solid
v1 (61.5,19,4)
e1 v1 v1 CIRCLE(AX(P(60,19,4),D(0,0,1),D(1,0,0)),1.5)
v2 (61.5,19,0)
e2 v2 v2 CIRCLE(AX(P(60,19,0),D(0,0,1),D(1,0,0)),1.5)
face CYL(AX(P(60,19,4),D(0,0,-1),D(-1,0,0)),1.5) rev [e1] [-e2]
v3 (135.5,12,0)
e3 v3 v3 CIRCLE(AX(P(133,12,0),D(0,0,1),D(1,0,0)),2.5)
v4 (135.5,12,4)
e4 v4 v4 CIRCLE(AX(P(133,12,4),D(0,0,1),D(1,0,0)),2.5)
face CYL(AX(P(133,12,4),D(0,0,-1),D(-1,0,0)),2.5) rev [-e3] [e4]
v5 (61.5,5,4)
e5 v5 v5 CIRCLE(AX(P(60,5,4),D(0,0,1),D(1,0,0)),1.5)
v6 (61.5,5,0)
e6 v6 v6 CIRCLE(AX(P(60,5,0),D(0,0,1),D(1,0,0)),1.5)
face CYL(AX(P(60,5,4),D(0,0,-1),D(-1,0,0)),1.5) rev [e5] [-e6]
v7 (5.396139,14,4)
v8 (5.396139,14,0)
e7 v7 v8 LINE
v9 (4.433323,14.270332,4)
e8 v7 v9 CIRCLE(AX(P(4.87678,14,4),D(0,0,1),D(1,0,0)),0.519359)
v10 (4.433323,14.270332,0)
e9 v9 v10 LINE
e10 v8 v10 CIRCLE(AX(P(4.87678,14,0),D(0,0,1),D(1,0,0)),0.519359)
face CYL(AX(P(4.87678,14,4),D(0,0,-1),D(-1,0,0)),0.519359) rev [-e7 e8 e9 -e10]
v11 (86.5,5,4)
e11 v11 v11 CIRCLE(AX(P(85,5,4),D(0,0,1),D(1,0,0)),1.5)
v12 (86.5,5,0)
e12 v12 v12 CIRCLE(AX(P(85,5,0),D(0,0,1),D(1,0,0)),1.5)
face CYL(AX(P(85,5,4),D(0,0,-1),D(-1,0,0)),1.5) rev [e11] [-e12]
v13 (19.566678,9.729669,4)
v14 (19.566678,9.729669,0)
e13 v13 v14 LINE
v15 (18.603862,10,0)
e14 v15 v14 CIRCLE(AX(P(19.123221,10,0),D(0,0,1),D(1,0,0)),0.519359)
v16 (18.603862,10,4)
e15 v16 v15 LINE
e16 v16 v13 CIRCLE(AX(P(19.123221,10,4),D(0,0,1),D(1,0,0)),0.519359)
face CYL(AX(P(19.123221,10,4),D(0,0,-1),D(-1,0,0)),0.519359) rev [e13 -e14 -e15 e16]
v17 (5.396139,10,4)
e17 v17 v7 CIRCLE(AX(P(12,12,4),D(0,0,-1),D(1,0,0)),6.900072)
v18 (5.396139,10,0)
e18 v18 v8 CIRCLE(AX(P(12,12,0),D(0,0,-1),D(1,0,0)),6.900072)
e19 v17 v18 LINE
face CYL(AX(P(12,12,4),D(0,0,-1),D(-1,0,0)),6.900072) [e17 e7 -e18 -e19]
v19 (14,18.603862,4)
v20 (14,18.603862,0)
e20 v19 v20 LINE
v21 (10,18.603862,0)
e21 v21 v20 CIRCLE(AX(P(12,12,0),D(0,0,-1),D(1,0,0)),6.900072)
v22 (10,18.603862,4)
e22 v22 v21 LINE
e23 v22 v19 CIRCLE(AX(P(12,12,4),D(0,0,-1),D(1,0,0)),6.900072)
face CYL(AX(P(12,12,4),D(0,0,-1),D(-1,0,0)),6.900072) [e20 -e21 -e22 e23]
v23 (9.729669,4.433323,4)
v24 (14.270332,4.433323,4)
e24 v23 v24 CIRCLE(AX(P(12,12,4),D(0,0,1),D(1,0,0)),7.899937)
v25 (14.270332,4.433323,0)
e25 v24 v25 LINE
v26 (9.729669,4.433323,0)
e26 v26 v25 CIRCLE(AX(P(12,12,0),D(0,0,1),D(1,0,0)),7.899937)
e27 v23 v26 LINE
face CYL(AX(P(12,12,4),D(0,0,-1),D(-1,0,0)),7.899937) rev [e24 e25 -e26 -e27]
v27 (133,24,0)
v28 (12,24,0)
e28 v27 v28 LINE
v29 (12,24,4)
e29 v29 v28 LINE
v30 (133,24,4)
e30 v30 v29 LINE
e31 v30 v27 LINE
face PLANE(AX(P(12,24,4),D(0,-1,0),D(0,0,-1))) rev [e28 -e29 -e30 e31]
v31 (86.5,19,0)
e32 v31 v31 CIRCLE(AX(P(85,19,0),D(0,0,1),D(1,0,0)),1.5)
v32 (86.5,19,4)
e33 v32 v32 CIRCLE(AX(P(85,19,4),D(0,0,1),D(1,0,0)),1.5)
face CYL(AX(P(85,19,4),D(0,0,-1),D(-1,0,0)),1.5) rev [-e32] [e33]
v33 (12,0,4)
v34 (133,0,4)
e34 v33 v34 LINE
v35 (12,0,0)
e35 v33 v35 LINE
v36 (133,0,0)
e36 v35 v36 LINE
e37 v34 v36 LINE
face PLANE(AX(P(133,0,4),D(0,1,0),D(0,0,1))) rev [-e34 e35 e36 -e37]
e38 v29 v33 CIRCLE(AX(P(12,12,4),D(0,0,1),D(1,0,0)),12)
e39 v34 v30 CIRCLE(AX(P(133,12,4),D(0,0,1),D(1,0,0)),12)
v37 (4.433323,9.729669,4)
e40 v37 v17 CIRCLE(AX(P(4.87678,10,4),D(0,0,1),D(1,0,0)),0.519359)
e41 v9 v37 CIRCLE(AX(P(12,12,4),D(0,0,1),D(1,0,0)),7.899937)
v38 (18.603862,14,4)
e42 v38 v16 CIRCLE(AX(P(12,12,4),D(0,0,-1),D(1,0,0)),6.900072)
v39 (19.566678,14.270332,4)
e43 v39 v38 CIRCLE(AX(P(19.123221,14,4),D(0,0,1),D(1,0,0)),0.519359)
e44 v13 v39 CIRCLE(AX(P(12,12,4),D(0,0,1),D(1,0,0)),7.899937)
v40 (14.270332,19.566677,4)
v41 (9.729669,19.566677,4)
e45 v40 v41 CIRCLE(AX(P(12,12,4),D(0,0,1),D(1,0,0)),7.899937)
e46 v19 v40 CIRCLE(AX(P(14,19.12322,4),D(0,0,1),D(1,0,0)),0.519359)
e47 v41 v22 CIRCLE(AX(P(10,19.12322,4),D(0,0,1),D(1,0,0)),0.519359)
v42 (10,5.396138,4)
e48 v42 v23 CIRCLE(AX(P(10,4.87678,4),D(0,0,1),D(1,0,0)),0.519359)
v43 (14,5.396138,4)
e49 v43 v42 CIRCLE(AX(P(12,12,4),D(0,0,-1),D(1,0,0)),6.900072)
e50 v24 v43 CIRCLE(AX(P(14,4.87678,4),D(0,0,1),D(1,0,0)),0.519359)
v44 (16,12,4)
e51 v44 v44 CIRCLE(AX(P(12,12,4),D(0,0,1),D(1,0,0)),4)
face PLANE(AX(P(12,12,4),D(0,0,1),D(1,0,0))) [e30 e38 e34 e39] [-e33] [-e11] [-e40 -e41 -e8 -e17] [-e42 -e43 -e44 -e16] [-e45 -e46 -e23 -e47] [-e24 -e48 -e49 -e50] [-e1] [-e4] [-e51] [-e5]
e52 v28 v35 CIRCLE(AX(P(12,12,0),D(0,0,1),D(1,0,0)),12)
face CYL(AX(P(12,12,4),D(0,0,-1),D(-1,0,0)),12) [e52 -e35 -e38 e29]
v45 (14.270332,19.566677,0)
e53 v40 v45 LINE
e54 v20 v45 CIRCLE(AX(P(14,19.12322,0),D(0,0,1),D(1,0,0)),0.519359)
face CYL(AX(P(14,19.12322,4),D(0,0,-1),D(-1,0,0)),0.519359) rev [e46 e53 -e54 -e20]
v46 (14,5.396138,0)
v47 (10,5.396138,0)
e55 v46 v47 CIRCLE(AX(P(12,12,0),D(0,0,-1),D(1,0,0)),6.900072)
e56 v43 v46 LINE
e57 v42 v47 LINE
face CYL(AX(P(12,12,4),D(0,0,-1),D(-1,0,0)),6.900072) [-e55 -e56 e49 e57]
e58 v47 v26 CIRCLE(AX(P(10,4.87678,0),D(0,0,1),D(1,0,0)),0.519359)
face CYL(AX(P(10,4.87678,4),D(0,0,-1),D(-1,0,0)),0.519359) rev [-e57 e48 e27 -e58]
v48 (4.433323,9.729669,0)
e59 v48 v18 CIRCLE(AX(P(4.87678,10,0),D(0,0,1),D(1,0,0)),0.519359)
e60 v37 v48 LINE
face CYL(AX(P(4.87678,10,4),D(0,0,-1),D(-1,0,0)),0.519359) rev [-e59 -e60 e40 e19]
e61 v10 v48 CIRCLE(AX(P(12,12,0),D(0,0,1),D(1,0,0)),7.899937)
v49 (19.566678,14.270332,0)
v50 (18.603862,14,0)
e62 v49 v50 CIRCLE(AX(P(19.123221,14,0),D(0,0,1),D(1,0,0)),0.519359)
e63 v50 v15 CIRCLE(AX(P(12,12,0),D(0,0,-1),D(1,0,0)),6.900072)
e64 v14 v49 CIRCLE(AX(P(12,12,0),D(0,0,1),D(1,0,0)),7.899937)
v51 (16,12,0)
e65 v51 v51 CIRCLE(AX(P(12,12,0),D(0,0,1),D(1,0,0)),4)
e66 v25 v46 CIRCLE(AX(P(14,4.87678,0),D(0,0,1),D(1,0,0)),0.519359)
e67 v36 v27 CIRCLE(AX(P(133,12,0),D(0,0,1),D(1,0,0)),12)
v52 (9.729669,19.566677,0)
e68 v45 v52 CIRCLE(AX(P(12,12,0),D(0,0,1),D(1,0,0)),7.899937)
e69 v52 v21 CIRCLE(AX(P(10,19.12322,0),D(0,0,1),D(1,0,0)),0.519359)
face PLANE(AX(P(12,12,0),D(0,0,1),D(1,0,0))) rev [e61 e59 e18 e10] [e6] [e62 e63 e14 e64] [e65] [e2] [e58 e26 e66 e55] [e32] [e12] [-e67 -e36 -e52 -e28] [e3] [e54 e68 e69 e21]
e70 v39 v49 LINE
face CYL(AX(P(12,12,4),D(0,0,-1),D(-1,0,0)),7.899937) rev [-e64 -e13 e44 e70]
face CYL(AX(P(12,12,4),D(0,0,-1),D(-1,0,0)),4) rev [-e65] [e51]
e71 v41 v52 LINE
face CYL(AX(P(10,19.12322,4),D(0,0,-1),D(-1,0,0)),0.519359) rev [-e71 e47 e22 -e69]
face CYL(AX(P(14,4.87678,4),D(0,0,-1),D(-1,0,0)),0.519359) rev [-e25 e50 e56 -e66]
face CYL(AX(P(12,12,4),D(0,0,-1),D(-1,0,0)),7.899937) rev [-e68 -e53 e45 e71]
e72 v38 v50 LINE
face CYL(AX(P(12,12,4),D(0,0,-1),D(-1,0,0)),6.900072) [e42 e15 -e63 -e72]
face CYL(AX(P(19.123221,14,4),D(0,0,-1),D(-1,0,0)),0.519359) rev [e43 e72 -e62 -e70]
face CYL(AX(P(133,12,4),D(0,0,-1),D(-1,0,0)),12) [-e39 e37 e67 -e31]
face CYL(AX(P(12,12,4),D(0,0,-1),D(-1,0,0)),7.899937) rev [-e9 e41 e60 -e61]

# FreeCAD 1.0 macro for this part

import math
import FreeCAD as App
import Part
import Sketcher

doc = App.newDocument("Part")
body = doc.addObject("PartDesign::Body", "Body")

sketch1 = doc.addObject("Sketcher::SketchObject", "Sketch")
body.addObject(sketch1)
sketch1.AttachmentSupport = (doc.XY_Plane, [""])
sketch1.MapMode = "FlatFace"
sketch1.addGeometry([
    Part.LineSegment(App.Vector(133, 24, 0), App.Vector(12, 24, 0)),
    Part.ArcOfCircle(Part.Circle(App.Vector(12, 12, 0), App.Vector(0, 0, 1), 12), math.radians(90), math.radians(270)),
    Part.LineSegment(App.Vector(12, 0, 0), App.Vector(133, 0, 0)),
    Part.ArcOfCircle(Part.Circle(App.Vector(133, 12, 0), App.Vector(0, 0, 1), 12), math.radians(-90), math.radians(90)),
    Part.Circle(App.Vector(85, 5, 0), App.Vector(0, 0, 1), 1.5),
    Part.Circle(App.Vector(60, 5, 0), App.Vector(0, 0, 1), 1.5),
    Part.ArcOfCircle(Part.Circle(App.Vector(10, 4.9, 0), App.Vector(0, 0, 1), 0.5), math.radians(90), math.radians(239)),
    Part.ArcOfCircle(Part.Circle(App.Vector(12, 12, 0), App.Vector(0, 0, 1), 6.9), math.radians(-107), math.radians(-73)),
    Part.ArcOfCircle(Part.Circle(App.Vector(14, 4.9, 0), App.Vector(0, 0, 1), 0.5), math.radians(-59), math.radians(90)),
    Part.ArcOfCircle(Part.Circle(App.Vector(12, 12, 0), App.Vector(0, 0, 1), 7.9), math.radians(-107), math.radians(-73)),
    Part.ArcOfCircle(Part.Circle(App.Vector(19.1, 10, 0), App.Vector(0, 0, 1), 0.5), math.radians(-180), math.radians(-31)),
    Part.ArcOfCircle(Part.Circle(App.Vector(12, 12, 0), App.Vector(0, 0, 1), 6.9), math.radians(-17), math.radians(17)),
    Part.ArcOfCircle(Part.Circle(App.Vector(19.1, 14, 0), App.Vector(0, 0, 1), 0.5), math.radians(31), math.radians(180)),
    Part.ArcOfCircle(Part.Circle(App.Vector(12, 12, 0), App.Vector(0, 0, 1), 7.9), math.radians(-17), math.radians(17)),
    Part.ArcOfCircle(Part.Circle(App.Vector(4.9, 14, 0), App.Vector(0, 0, 1), 0.5), math.radians(0), math.radians(149)),
    Part.ArcOfCircle(Part.Circle(App.Vector(12, 12, 0), App.Vector(0, 0, 1), 6.9), math.radians(163), math.radians(197)),
    Part.ArcOfCircle(Part.Circle(App.Vector(4.9, 10, 0), App.Vector(0, 0, 1), 0.5), math.radians(-149), math.radians(0)),
    Part.ArcOfCircle(Part.Circle(App.Vector(12, 12, 0), App.Vector(0, 0, 1), 7.9), math.radians(163), math.radians(197)),
    Part.Circle(App.Vector(133, 12, 0), App.Vector(0, 0, 1), 2.5),
    Part.Circle(App.Vector(85, 19, 0), App.Vector(0, 0, 1), 1.5),
    Part.Circle(App.Vector(12, 12, 0), App.Vector(0, 0, 1), 4),
    Part.Circle(App.Vector(60, 19, 0), App.Vector(0, 0, 1), 1.5),
    Part.ArcOfCircle(Part.Circle(App.Vector(14, 19.1, 0), App.Vector(0, 0, 1), 0.5), math.radians(-90), math.radians(59)),
    Part.ArcOfCircle(Part.Circle(App.Vector(12, 12, 0), App.Vector(0, 0, 1), 6.9), math.radians(73), math.radians(107)),
    Part.ArcOfCircle(Part.Circle(App.Vector(10, 19.1, 0), App.Vector(0, 0, 1), 0.5), math.radians(121), math.radians(270)),
    Part.ArcOfCircle(Part.Circle(App.Vector(12, 12, 0), App.Vector(0, 0, 1), 7.9), math.radians(73), math.radians(107)),
], False)
sketch1.addConstraint([
    Sketcher.Constraint("Tangent", 0, 2, 1, 1),
    Sketcher.Constraint("Tangent", 1, 2, 2, 1),
    Sketcher.Constraint("Tangent", 2, 2, 3, 1),
    Sketcher.Constraint("Tangent", 3, 2, 0, 1),
    Sketcher.Constraint("Coincident", 6, 1, 7, 1),
    Sketcher.Constraint("Coincident", 7, 2, 8, 2),
    Sketcher.Constraint("Coincident", 8, 1, 9, 2),
    Sketcher.Constraint("Coincident", 9, 1, 6, 2),
    Sketcher.Constraint("Coincident", 10, 1, 11, 1),
    Sketcher.Constraint("Coincident", 11, 2, 12, 2),
    Sketcher.Constraint("Coincident", 12, 1, 13, 2),
    Sketcher.Constraint("Coincident", 13, 1, 10, 2),
    Sketcher.Constraint("Coincident", 14, 1, 15, 1),
    Sketcher.Constraint("Coincident", 15, 2, 16, 2),
    Sketcher.Constraint("Coincident", 16, 1, 17, 2),
    Sketcher.Constraint("Coincident", 17, 1, 14, 2),
    Sketcher.Constraint("Coincident", 22, 1, 23, 1),
    Sketcher.Constraint("Coincident", 23, 2, 24, 2),
    Sketcher.Constraint("Coincident", 24, 1, 25, 2),
    Sketcher.Constraint("Coincident", 25, 1, 22, 2),
    Sketcher.Constraint("Horizontal", 0),
    Sketcher.Constraint("Horizontal", 2),
    Sketcher.Constraint("Coincident", 7, 3, 1, 3),
    Sketcher.Constraint("Coincident", 9, 3, 1, 3),
    Sketcher.Constraint("Coincident", 11, 3, 1, 3),
    Sketcher.Constraint("Coincident", 13, 3, 1, 3),
    Sketcher.Constraint("Coincident", 15, 3, 1, 3),
    Sketcher.Constraint("Coincident", 17, 3, 1, 3),
    Sketcher.Constraint("Coincident", 18, 3, 3, 3),
    Sketcher.Constraint("Coincident", 20, 3, 1, 3),
    Sketcher.Constraint("Coincident", 23, 3, 1, 3),
    Sketcher.Constraint("Coincident", 25, 3, 1, 3),
    Sketcher.Constraint("Equal", 4, 5),
    Sketcher.Constraint("Equal", 6, 8),
    Sketcher.Constraint("Equal", 8, 10),
    Sketcher.Constraint("Equal", 7, 11),
    Sketcher.Constraint("Equal", 10, 12),
    Sketcher.Constraint("Equal", 9, 13),
    Sketcher.Constraint("Equal", 12, 14),
    Sketcher.Constraint("Equal", 11, 15),
    Sketcher.Constraint("Equal", 14, 16),
    Sketcher.Constraint("Equal", 13, 17),
    Sketcher.Constraint("Equal", 5, 19),
    Sketcher.Constraint("Equal", 19, 21),
    Sketcher.Constraint("Equal", 16, 22),
    Sketcher.Constraint("Equal", 15, 23),
    Sketcher.Constraint("Equal", 22, 24),
    Sketcher.Constraint("Equal", 17, 25),
    Sketcher.Constraint("PointOnObject", 1, 2, -1),
    Sketcher.Constraint("Horizontal", 4, 3, 5, 3),
    Sketcher.Constraint("Horizontal", 6, 3, 8, 3),
    Sketcher.Constraint("Horizontal", 12, 3, 14, 3),
    Sketcher.Constraint("Horizontal", 10, 3, 16, 3),
    Sketcher.Constraint("Horizontal", 19, 3, 21, 3),
    Sketcher.Constraint("Horizontal", 22, 3, 24, 3),
    Sketcher.Constraint("Horizontal", 8, 1, 9, 1),
    Sketcher.Constraint("Horizontal", 16, 3, 10, 1),
    Sketcher.Constraint("Horizontal", 14, 3, 11, 2),
    Sketcher.Constraint("Horizontal", 11, 2, 14, 1),
    Sketcher.Constraint("Horizontal", 10, 1, 15, 2),
    Sketcher.Constraint("Horizontal", 24, 1, 25, 1),
    Sketcher.Constraint("Vertical", 10, 3, 12, 3),
    Sketcher.Constraint("Vertical", 4, 3, 19, 3),
    Sketcher.Constraint("Vertical", 5, 3, 21, 3),
    Sketcher.Constraint("Vertical", 8, 3, 22, 3),
    Sketcher.Constraint("Vertical", 24, 3, 6, 1),
    Sketcher.Constraint("Vertical", 7, 2, 22, 1),
    Sketcher.Constraint("Diameter", 4, 3.0),
    Sketcher.Constraint("Diameter", 18, 5.0),
    Sketcher.Constraint("Diameter", 20, 8.0),
    Sketcher.Constraint("Radius", 1, 12.0),
    Sketcher.Constraint("DistanceX", 0, 2, 0, 1, 121.0),
    Sketcher.Constraint("DistanceX", -1, 1, 1, 3, 12.0),
    Sketcher.Constraint("DistanceX", -1, 1, 4, 3, 85.0),
    Sketcher.Constraint("DistanceY", -1, 1, 4, 3, 5.0),
    Sketcher.Constraint("DistanceX", -1, 1, 5, 3, 60.0),
    Sketcher.Constraint("DistanceX", -1, 1, 6, 3, 10.0),
    Sketcher.Constraint("DistanceY", -1, 1, 10, 3, 10.0),
    Sketcher.Constraint("DistanceY", -1, 1, 19, 3, 19.0),
    Sketcher.Constraint("Radius", 6, 0.519359),
    Sketcher.Constraint("Radius", 7, 6.900072),
    Sketcher.Constraint("Radius", 9, 7.899937),
])
pad1 = doc.addObject("PartDesign::Pad", "Pad")
body.addObject(pad1)
pad1.Profile = sketch1
pad1.Length = 4

doc.recompute()
